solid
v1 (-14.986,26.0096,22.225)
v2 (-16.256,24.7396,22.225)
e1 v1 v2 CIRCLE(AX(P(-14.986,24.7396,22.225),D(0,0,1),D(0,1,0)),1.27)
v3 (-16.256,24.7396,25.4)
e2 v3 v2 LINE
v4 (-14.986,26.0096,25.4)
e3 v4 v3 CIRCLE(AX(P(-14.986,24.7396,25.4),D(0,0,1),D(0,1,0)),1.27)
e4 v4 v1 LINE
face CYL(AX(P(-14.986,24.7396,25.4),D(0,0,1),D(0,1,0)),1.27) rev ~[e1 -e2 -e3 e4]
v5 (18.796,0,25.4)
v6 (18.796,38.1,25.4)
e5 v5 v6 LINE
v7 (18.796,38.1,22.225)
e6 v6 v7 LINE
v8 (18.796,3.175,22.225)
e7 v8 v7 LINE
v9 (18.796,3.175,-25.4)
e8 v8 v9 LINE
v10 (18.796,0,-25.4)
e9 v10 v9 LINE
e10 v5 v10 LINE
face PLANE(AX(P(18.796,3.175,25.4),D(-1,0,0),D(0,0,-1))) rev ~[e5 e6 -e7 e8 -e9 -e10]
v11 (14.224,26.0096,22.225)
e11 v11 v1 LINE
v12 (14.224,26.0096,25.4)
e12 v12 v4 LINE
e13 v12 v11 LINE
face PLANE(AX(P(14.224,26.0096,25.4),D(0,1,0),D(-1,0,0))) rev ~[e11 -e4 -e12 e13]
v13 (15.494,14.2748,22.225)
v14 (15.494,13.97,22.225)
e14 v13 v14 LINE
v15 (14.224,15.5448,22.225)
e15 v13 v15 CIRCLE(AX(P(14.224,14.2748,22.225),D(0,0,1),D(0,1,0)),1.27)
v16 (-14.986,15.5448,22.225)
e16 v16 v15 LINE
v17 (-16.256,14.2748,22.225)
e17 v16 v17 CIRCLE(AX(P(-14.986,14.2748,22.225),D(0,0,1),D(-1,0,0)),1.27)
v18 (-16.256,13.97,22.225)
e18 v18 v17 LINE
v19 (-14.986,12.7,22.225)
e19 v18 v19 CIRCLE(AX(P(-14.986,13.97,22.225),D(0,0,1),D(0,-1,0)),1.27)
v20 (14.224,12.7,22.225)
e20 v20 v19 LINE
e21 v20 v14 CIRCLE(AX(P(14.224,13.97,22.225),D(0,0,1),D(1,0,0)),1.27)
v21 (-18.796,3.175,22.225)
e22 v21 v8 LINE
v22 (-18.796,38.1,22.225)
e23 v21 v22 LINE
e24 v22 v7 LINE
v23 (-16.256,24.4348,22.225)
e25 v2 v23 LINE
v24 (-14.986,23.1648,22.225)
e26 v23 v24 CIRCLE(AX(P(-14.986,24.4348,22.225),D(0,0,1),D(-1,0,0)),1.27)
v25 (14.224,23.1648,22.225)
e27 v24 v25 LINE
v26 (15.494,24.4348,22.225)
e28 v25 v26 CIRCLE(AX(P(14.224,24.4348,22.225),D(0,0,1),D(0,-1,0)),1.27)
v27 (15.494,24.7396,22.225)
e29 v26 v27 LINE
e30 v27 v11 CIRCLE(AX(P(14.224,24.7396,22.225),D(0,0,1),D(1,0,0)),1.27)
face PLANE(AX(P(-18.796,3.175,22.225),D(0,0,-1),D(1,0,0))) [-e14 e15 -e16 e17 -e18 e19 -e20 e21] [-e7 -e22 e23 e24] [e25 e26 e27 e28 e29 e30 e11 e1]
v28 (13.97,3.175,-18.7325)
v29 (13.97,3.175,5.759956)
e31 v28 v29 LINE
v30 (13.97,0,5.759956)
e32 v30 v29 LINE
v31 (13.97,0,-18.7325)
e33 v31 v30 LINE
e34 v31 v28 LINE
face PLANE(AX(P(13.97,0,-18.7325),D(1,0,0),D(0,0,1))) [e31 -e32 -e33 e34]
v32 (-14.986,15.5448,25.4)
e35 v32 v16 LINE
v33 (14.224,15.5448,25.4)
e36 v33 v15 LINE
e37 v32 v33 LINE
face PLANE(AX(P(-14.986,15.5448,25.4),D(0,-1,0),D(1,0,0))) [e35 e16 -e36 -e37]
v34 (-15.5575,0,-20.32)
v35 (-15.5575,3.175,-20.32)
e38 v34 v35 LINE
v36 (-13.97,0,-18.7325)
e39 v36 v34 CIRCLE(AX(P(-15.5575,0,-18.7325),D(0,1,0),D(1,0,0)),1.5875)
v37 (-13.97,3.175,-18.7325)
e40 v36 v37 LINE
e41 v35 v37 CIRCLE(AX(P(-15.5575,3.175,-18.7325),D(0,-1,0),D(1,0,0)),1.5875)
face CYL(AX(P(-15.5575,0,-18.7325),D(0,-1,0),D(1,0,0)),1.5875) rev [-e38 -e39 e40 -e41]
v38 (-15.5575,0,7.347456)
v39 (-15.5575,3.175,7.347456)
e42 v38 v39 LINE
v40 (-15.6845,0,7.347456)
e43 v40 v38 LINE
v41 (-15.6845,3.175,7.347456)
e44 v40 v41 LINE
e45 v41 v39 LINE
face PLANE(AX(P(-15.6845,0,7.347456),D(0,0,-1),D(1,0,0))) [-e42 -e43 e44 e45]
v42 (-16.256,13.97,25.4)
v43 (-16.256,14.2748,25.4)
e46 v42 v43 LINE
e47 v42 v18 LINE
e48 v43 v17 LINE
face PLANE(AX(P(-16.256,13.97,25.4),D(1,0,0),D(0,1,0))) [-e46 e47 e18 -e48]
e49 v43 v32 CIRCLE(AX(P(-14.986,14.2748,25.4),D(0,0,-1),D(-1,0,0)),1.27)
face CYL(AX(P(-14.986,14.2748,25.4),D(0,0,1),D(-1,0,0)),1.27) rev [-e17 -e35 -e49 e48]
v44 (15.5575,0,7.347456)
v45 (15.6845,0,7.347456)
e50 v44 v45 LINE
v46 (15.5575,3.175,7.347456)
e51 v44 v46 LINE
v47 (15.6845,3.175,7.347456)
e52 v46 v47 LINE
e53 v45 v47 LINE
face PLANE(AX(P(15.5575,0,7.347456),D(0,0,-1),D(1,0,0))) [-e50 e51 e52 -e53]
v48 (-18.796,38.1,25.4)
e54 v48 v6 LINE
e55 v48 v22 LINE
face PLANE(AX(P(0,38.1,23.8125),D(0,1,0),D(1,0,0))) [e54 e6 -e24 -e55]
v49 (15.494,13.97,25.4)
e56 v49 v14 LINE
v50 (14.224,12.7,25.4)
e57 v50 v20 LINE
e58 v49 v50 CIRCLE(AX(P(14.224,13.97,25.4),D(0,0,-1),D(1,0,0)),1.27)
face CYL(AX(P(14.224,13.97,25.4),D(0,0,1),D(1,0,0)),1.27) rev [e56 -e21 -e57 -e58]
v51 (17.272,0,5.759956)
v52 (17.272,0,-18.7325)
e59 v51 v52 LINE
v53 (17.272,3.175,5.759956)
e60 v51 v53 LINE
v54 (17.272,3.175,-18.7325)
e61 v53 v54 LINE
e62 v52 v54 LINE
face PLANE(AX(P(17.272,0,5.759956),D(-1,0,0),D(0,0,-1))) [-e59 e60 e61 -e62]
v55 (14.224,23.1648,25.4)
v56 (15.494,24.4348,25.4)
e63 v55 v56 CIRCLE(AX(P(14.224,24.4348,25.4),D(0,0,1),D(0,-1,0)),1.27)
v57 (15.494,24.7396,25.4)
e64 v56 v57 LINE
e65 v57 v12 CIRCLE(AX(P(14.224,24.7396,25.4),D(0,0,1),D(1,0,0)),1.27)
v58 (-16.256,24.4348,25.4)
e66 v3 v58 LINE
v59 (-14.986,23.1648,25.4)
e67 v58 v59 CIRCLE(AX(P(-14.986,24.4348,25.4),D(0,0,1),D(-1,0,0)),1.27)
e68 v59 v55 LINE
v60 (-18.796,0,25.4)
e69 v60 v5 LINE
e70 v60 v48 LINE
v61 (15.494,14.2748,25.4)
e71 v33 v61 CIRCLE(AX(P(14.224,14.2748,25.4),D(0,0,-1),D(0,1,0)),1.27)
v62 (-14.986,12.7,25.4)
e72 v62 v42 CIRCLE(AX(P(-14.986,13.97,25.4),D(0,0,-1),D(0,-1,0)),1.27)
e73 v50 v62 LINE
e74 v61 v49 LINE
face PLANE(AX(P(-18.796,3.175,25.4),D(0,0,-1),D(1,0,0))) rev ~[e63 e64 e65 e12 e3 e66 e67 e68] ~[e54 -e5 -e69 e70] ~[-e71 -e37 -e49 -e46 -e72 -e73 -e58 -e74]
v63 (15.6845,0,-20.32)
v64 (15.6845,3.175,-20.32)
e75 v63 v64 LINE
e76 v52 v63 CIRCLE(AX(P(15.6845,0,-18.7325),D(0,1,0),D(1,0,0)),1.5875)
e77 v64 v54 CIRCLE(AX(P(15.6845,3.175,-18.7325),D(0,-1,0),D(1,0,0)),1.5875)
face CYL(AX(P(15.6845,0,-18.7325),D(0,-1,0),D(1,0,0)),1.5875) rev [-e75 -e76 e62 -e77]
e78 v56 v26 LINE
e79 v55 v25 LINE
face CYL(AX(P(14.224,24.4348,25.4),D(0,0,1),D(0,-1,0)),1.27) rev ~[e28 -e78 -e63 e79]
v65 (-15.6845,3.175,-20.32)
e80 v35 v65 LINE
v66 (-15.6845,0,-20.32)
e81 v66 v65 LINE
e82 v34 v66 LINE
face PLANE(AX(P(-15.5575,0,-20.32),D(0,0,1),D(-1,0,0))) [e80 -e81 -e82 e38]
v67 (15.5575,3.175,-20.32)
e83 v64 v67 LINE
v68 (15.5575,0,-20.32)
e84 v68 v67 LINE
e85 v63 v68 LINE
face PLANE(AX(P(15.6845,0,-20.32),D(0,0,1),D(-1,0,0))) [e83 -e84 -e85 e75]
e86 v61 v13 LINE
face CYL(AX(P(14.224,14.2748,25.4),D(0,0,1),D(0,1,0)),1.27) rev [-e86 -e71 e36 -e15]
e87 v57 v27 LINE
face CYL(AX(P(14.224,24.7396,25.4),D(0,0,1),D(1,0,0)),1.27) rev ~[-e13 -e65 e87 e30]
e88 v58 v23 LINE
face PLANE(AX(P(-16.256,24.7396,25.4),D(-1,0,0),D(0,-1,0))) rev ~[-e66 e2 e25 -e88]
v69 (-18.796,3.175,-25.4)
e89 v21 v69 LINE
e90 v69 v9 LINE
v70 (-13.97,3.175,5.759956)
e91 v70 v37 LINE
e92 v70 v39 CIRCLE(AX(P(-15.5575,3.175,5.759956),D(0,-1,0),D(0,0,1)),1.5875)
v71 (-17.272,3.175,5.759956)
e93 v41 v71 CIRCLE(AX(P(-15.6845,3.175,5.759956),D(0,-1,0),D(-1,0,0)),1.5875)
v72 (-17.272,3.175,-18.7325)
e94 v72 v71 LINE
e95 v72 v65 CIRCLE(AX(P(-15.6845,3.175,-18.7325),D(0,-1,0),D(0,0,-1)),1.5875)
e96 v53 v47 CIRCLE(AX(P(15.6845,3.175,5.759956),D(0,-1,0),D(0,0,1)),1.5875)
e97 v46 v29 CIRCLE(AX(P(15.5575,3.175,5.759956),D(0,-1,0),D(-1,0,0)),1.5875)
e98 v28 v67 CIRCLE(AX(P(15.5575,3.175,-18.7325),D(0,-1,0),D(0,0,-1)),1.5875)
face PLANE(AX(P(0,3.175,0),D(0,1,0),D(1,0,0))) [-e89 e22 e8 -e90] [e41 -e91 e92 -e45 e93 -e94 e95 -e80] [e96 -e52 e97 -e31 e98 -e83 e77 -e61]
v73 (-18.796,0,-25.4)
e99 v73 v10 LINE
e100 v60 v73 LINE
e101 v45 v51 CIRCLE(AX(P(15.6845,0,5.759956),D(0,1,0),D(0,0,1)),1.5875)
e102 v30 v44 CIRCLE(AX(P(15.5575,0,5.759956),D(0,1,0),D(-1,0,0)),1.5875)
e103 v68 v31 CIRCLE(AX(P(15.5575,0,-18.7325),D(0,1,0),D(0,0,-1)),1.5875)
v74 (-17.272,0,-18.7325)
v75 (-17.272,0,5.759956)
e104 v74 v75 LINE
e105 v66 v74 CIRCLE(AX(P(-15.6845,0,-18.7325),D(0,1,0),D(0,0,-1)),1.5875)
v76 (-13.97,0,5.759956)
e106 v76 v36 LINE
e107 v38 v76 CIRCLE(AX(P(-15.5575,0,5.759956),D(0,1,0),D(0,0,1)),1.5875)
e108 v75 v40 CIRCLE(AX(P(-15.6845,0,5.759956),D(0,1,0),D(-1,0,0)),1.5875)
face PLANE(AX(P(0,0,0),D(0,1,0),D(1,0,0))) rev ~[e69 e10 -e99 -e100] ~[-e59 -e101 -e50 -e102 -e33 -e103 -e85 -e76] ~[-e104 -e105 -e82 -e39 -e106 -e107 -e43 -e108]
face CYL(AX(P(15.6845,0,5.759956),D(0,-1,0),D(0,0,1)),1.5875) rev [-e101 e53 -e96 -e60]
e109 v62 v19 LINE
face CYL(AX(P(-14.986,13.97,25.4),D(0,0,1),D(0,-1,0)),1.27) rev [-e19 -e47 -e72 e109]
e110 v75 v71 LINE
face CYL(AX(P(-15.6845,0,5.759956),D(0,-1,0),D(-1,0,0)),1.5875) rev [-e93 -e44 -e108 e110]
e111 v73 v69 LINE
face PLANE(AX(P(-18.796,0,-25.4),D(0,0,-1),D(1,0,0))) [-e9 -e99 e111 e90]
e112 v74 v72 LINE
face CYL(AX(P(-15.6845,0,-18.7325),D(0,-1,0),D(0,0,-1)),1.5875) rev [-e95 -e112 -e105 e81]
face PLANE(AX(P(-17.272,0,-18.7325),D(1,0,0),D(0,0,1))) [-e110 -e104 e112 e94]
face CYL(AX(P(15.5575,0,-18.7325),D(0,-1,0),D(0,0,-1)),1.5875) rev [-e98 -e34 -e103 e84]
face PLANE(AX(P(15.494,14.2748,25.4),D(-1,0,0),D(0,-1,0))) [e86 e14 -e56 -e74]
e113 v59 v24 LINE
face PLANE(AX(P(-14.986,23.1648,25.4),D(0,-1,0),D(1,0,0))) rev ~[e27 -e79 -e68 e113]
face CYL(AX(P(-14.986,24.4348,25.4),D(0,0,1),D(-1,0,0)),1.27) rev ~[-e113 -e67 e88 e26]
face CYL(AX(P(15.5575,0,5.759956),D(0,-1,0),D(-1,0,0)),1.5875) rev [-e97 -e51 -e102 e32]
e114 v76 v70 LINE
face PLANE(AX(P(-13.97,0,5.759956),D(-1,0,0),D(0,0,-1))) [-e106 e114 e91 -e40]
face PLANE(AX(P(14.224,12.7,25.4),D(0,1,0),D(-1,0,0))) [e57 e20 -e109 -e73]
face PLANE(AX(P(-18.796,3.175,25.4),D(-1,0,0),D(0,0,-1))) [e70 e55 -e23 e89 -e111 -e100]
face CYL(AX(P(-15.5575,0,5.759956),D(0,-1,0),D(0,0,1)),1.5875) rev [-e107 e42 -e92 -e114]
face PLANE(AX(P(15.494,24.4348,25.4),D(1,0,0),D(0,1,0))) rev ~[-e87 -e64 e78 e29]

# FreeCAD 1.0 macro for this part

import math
import FreeCAD as App
import Part
import Sketcher

V = App.Vector
Q = App.Units.Quantity


def add_polygon(sketch, points):
    """Adds a closed chain of lines whose ends are joined by coincident constraints."""
    first, n = sketch.GeometryCount, len(points)
    for a, b in zip(points, points[1:] + points[:1]):
        sketch.addGeometry(Part.LineSegment(App.Vector(*a, 0), App.Vector(*b, 0)), False)
    for i in range(n):
        sketch.addConstraint(Sketcher.Constraint("Coincident", first + i, 2, first + (i + 1) % n, 1))

doc = App.newDocument("Part")
body = doc.addObject("PartDesign::Body", "Body")

# Sketch on XZ plane
sketch1 = body.newObject("Sketcher::SketchObject", "Sketch")
sketch1.AttachmentSupport = (doc.getObject("XZ_Plane"), [""])
sketch1.MapMode = "FlatFace"
add_polygon(sketch1, [(-18.796, -25.4), (-18.796, 25.4), (18.796, 25.4), (18.796, -25.4)])  # lines 0-3
sketch1.addConstraint(Sketcher.Constraint("Vertical", 0))
sketch1.addConstraint(Sketcher.Constraint("Horizontal", 1))
sketch1.addConstraint(Sketcher.Constraint("Vertical", 2))
sketch1.addConstraint(Sketcher.Constraint("Horizontal", 3))
sketch1.addConstraint(Sketcher.Constraint("Symmetric", 0, 2, 2, 2, -1, 1))
sketch1.addConstraint(Sketcher.Constraint("DistanceY", 0, 1, 0, 2, Q("2 in")))
sketch1.addConstraint(Sketcher.Constraint("DistanceX", 1, 1, 1, 2, Q("1.48 in")))
pad1 = body.newObject("PartDesign::Pad", "Pad")
pad1.Profile = sketch1
pad1.Length = Q("0.125 in")
pad1.Reversed = True

# Sketch on XZ plane
sketch2 = body.newObject("Sketcher::SketchObject", "Sketch001")
sketch2.AttachmentSupport = (doc.getObject("XZ_Plane"), [""])
sketch2.MapMode = "FlatFace"
sketch2.AttachmentOffset = App.Placement(V(0, 0, -0.125 * 25.4), App.Rotation())
add_polygon(sketch2, [(-18.796, 22.225), (-18.796, 25.4), (18.796, 25.4), (18.796, 22.225)])  # lines 0-3
sketch2.addConstraint(Sketcher.Constraint("Vertical", 0))
sketch2.addConstraint(Sketcher.Constraint("Horizontal", 1))
sketch2.addConstraint(Sketcher.Constraint("Vertical", 2))
sketch2.addConstraint(Sketcher.Constraint("Horizontal", 3))
sketch2.addConstraint(Sketcher.Constraint("DistanceY", -1, 1, 0, 2, Q("1 in")))
sketch2.addConstraint(Sketcher.Constraint("DistanceX", 1, 1, 1, 2, Q("1.48 in")))
sketch2.addConstraint(Sketcher.Constraint("DistanceY", 0, 1, 0, 2, Q("0.125 in")))
sketch2.addConstraint(Sketcher.Constraint("DistanceX", 0, 2, -1, 1, Q("0.74 in")))
pad2 = body.newObject("PartDesign::Pad", "Pad001")
pad2.Profile = sketch2
pad2.Length = Q("1.375 in")
pad2.Reversed = True

# Sketch on XY plane
sketch3 = body.newObject("Sketcher::SketchObject", "Sketch002")
sketch3.AttachmentSupport = (doc.getObject("XY_Plane"), [""])
sketch3.MapMode = "FlatFace"
sketch3.AttachmentOffset = App.Placement(V(0, 0, 1 * 25.4), App.Rotation())
sketch3.addGeometry(Part.LineSegment(V(-14.986, 12.7, 0), V(14.224, 12.7, 0)), False)
sketch3.addGeometry(Part.ArcOfCircle(Part.Circle(V(14.224, 13.97, 0), V(0, 0, 1), 1.27), math.radians(-90), math.radians(0)), False)
sketch3.addGeometry(Part.LineSegment(V(15.494, 13.97, 0), V(15.494, 14.2748, 0)), False)
sketch3.addGeometry(Part.ArcOfCircle(Part.Circle(V(14.224, 14.2748, 0), V(0, 0, 1), 1.27), math.radians(0), math.radians(90)), False)
sketch3.addGeometry(Part.LineSegment(V(14.224, 15.5448, 0), V(-14.986, 15.5448, 0)), False)
sketch3.addGeometry(Part.ArcOfCircle(Part.Circle(V(-14.986, 14.2748, 0), V(0, 0, 1), 1.27), math.radians(90), math.radians(180)), False)
sketch3.addGeometry(Part.LineSegment(V(-16.256, 14.2748, 0), V(-16.256, 13.97, 0)), False)
sketch3.addGeometry(Part.ArcOfCircle(Part.Circle(V(-14.986, 13.97, 0), V(0, 0, 1), 1.27), math.radians(180), math.radians(270)), False)
sketch3.addConstraint(Sketcher.Constraint("Tangent", 0, 2, 1, 1))
sketch3.addConstraint(Sketcher.Constraint("Tangent", 1, 2, 2, 1))
sketch3.addConstraint(Sketcher.Constraint("Tangent", 2, 2, 3, 1))
sketch3.addConstraint(Sketcher.Constraint("Tangent", 3, 2, 4, 1))
sketch3.addConstraint(Sketcher.Constraint("Tangent", 4, 2, 5, 1))
sketch3.addConstraint(Sketcher.Constraint("Tangent", 5, 2, 6, 1))
sketch3.addConstraint(Sketcher.Constraint("Tangent", 6, 2, 7, 1))
sketch3.addConstraint(Sketcher.Constraint("Tangent", 7, 2, 0, 1))
sketch3.addConstraint(Sketcher.Constraint("Horizontal", 0))
sketch3.addConstraint(Sketcher.Constraint("Vertical", 2))
sketch3.addConstraint(Sketcher.Constraint("Horizontal", 4))
sketch3.addConstraint(Sketcher.Constraint("Vertical", 6))
sketch3.addConstraint(Sketcher.Constraint("Equal", 1, 3))
sketch3.addConstraint(Sketcher.Constraint("Equal", 3, 5))
sketch3.addConstraint(Sketcher.Constraint("Equal", 5, 7))
sketch3.addConstraint(Sketcher.Constraint("Radius", 1, Q("0.05 in")))
sketch3.addConstraint(Sketcher.Constraint("DistanceX", 0, 1, 0, 2, Q("1.15 in")))
sketch3.addConstraint(Sketcher.Constraint("DistanceY", -1, 1, 0, 2, Q("0.5 in")))
sketch3.addConstraint(Sketcher.Constraint("DistanceY", 2, 1, 2, 2, Q("0.012 in")))
sketch3.addConstraint(Sketcher.Constraint("DistanceX", -1, 1, 1, 3, Q("0.56 in")))
pocket1 = body.newObject("PartDesign::Pocket", "Pocket")
pocket1.Profile = sketch3
pocket1.Type = "UpToFirst"

# Sketch on XY plane
sketch4 = body.newObject("Sketcher::SketchObject", "Sketch003")
sketch4.AttachmentSupport = (doc.getObject("XY_Plane"), [""])
sketch4.MapMode = "FlatFace"
sketch4.AttachmentOffset = App.Placement(V(0, 0, 1 * 25.4), App.Rotation())
sketch4.addGeometry(Part.LineSegment(V(-14.986, 23.1648, 0), V(14.224, 23.1648, 0)), False)
sketch4.addGeometry(Part.ArcOfCircle(Part.Circle(V(14.224, 24.4348, 0), V(0, 0, 1), 1.27), math.radians(-90), math.radians(0)), False)
sketch4.addGeometry(Part.LineSegment(V(15.494, 24.4348, 0), V(15.494, 24.7396, 0)), False)
sketch4.addGeometry(Part.ArcOfCircle(Part.Circle(V(14.224, 24.7396, 0), V(0, 0, 1), 1.27), math.radians(0), math.radians(90)), False)
sketch4.addGeometry(Part.LineSegment(V(14.224, 26.0096, 0), V(-14.986, 26.0096, 0)), False)
sketch4.addGeometry(Part.ArcOfCircle(Part.Circle(V(-14.986, 24.7396, 0), V(0, 0, 1), 1.27), math.radians(90), math.radians(180)), False)
sketch4.addGeometry(Part.LineSegment(V(-16.256, 24.7396, 0), V(-16.256, 24.4348, 0)), False)
sketch4.addGeometry(Part.ArcOfCircle(Part.Circle(V(-14.986, 24.4348, 0), V(0, 0, 1), 1.27), math.radians(180), math.radians(270)), False)
sketch4.addConstraint(Sketcher.Constraint("Tangent", 0, 2, 1, 1))
sketch4.addConstraint(Sketcher.Constraint("Tangent", 1, 2, 2, 1))
sketch4.addConstraint(Sketcher.Constraint("Tangent", 2, 2, 3, 1))
sketch4.addConstraint(Sketcher.Constraint("Tangent", 3, 2, 4, 1))
sketch4.addConstraint(Sketcher.Constraint("Tangent", 4, 2, 5, 1))
sketch4.addConstraint(Sketcher.Constraint("Tangent", 5, 2, 6, 1))
sketch4.addConstraint(Sketcher.Constraint("Tangent", 6, 2, 7, 1))
sketch4.addConstraint(Sketcher.Constraint("Tangent", 7, 2, 0, 1))
sketch4.addConstraint(Sketcher.Constraint("Horizontal", 0))
sketch4.addConstraint(Sketcher.Constraint("Vertical", 2))
sketch4.addConstraint(Sketcher.Constraint("Horizontal", 4))
sketch4.addConstraint(Sketcher.Constraint("Vertical", 6))
sketch4.addConstraint(Sketcher.Constraint("Equal", 1, 3))
sketch4.addConstraint(Sketcher.Constraint("Equal", 3, 5))
sketch4.addConstraint(Sketcher.Constraint("Equal", 5, 7))
sketch4.addConstraint(Sketcher.Constraint("Radius", 1, Q("0.05 in")))
sketch4.addConstraint(Sketcher.Constraint("DistanceX", 0, 1, 0, 2, Q("1.15 in")))
sketch4.addConstraint(Sketcher.Constraint("DistanceY", 2, 1, 2, 2, Q("0.012 in")))
sketch4.addConstraint(Sketcher.Constraint("DistanceX", -1, 1, 1, 3, Q("0.56 in")))
sketch4.addConstraint(Sketcher.Constraint("DistanceY", -1, 1, 1, 3, Q("0.962 in")))
pocket2 = body.newObject("PartDesign::Pocket", "Pocket001")
pocket2.Profile = sketch4
pocket2.Type = "UpToFirst"

# Sketch on XZ plane
sketch5 = body.newObject("Sketcher::SketchObject", "Sketch004")
sketch5.AttachmentSupport = (doc.getObject("XZ_Plane"), [""])
sketch5.MapMode = "FlatFace"
sketch5.addGeometry(Part.LineSegment(V(-15.6845, -20.32, 0), V(-15.5575, -20.32, 0)), False)
sketch5.addGeometry(Part.ArcOfCircle(Part.Circle(V(-15.5575, -18.7325, 0), V(0, 0, 1), 1.5875), math.radians(-90), math.radians(0)), False)
sketch5.addGeometry(Part.LineSegment(V(-13.97, -18.7325, 0), V(-13.97, 5.759956, 0)), False)
sketch5.addGeometry(Part.ArcOfCircle(Part.Circle(V(-15.5575, 5.759956, 0), V(0, 0, 1), 1.5875), math.radians(0), math.radians(90)), False)
sketch5.addGeometry(Part.LineSegment(V(-15.5575, 7.347456, 0), V(-15.6845, 7.347456, 0)), False)
sketch5.addGeometry(Part.ArcOfCircle(Part.Circle(V(-15.6845, 5.759956, 0), V(0, 0, 1), 1.5875), math.radians(90), math.radians(180)), False)
sketch5.addGeometry(Part.LineSegment(V(-17.272, 5.759956, 0), V(-17.272, -18.7325, 0)), False)
sketch5.addGeometry(Part.ArcOfCircle(Part.Circle(V(-15.6845, -18.7325, 0), V(0, 0, 1), 1.5875), math.radians(180), math.radians(270)), False)
sketch5.addConstraint(Sketcher.Constraint("Tangent", 0, 2, 1, 1))
sketch5.addConstraint(Sketcher.Constraint("Tangent", 1, 2, 2, 1))
sketch5.addConstraint(Sketcher.Constraint("Tangent", 2, 2, 3, 1))
sketch5.addConstraint(Sketcher.Constraint("Tangent", 3, 2, 4, 1))
sketch5.addConstraint(Sketcher.Constraint("Tangent", 4, 2, 5, 1))
sketch5.addConstraint(Sketcher.Constraint("Tangent", 5, 2, 6, 1))
sketch5.addConstraint(Sketcher.Constraint("Tangent", 6, 2, 7, 1))
sketch5.addConstraint(Sketcher.Constraint("Tangent", 7, 2, 0, 1))
sketch5.addConstraint(Sketcher.Constraint("Horizontal", 0))
sketch5.addConstraint(Sketcher.Constraint("Vertical", 2))
sketch5.addConstraint(Sketcher.Constraint("Horizontal", 4))
sketch5.addConstraint(Sketcher.Constraint("Vertical", 6))
sketch5.addConstraint(Sketcher.Constraint("Equal", 1, 3))
sketch5.addConstraint(Sketcher.Constraint("Equal", 3, 5))
sketch5.addConstraint(Sketcher.Constraint("Equal", 5, 7))
sketch5.addConstraint(Sketcher.Constraint("Radius", 1, Q("0.0625 in")))
sketch5.addConstraint(Sketcher.Constraint("DistanceY", 0, 2, -1, 1, Q("0.8 in")))
sketch5.addConstraint(Sketcher.Constraint("DistanceX", 0, 1, 0, 2, Q("0.005 in")))
sketch5.addConstraint(Sketcher.Constraint("DistanceX", 1, 2, -1, 1, Q("0.55 in")))
sketch5.addConstraint(Sketcher.Constraint("DistanceY", 2, 1, 2, 2, 24.492456))
pocket3 = body.newObject("PartDesign::Pocket", "Pocket002")
pocket3.Profile = sketch5
pocket3.Type = "UpToFirst"

# Sketch on XZ plane
sketch6 = body.newObject("Sketcher::SketchObject", "Sketch005")
sketch6.AttachmentSupport = (doc.getObject("XZ_Plane"), [""])
sketch6.MapMode = "FlatFace"
sketch6.addGeometry(Part.LineSegment(V(15.5575, -20.32, 0), V(15.6845, -20.32, 0)), False)
sketch6.addGeometry(Part.ArcOfCircle(Part.Circle(V(15.6845, -18.7325, 0), V(0, 0, 1), 1.5875), math.radians(-90), math.radians(0)), False)
sketch6.addGeometry(Part.LineSegment(V(17.272, -18.7325, 0), V(17.272, 5.759956, 0)), False)
sketch6.addGeometry(Part.ArcOfCircle(Part.Circle(V(15.6845, 5.759956, 0), V(0, 0, 1), 1.5875), math.radians(0), math.radians(90)), False)
sketch6.addGeometry(Part.LineSegment(V(15.6845, 7.347456, 0), V(15.5575, 7.347456, 0)), False)
sketch6.addGeometry(Part.ArcOfCircle(Part.Circle(V(15.5575, 5.759956, 0), V(0, 0, 1), 1.5875), math.radians(90), math.radians(180)), False)
sketch6.addGeometry(Part.LineSegment(V(13.97, 5.759956, 0), V(13.97, -18.7325, 0)), False)
sketch6.addGeometry(Part.ArcOfCircle(Part.Circle(V(15.5575, -18.7325, 0), V(0, 0, 1), 1.5875), math.radians(180), math.radians(270)), False)
sketch6.addConstraint(Sketcher.Constraint("Tangent", 0, 2, 1, 1))
sketch6.addConstraint(Sketcher.Constraint("Tangent", 1, 2, 2, 1))
sketch6.addConstraint(Sketcher.Constraint("Tangent", 2, 2, 3, 1))
sketch6.addConstraint(Sketcher.Constraint("Tangent", 3, 2, 4, 1))
sketch6.addConstraint(Sketcher.Constraint("Tangent", 4, 2, 5, 1))
sketch6.addConstraint(Sketcher.Constraint("Tangent", 5, 2, 6, 1))
sketch6.addConstraint(Sketcher.Constraint("Tangent", 6, 2, 7, 1))
sketch6.addConstraint(Sketcher.Constraint("Tangent", 7, 2, 0, 1))
sketch6.addConstraint(Sketcher.Constraint("Horizontal", 0))
sketch6.addConstraint(Sketcher.Constraint("Vertical", 2))
sketch6.addConstraint(Sketcher.Constraint("Horizontal", 4))
sketch6.addConstraint(Sketcher.Constraint("Vertical", 6))
sketch6.addConstraint(Sketcher.Constraint("Equal", 1, 3))
sketch6.addConstraint(Sketcher.Constraint("Equal", 3, 5))
sketch6.addConstraint(Sketcher.Constraint("Equal", 5, 7))
sketch6.addConstraint(Sketcher.Constraint("Radius", 1, Q("0.0625 in")))
sketch6.addConstraint(Sketcher.Constraint("DistanceY", 0, 2, -1, 1, Q("0.8 in")))
sketch6.addConstraint(Sketcher.Constraint("DistanceX", 0, 1, 0, 2, Q("0.005 in")))
sketch6.addConstraint(Sketcher.Constraint("DistanceX", -1, 1, 1, 2, Q("0.68 in")))
sketch6.addConstraint(Sketcher.Constraint("DistanceY", 2, 1, 2, 2, 24.492456))
pocket4 = body.newObject("PartDesign::Pocket", "Pocket003")
pocket4.Profile = sketch6
pocket4.Type = "UpToFirst"

doc.recompute()
